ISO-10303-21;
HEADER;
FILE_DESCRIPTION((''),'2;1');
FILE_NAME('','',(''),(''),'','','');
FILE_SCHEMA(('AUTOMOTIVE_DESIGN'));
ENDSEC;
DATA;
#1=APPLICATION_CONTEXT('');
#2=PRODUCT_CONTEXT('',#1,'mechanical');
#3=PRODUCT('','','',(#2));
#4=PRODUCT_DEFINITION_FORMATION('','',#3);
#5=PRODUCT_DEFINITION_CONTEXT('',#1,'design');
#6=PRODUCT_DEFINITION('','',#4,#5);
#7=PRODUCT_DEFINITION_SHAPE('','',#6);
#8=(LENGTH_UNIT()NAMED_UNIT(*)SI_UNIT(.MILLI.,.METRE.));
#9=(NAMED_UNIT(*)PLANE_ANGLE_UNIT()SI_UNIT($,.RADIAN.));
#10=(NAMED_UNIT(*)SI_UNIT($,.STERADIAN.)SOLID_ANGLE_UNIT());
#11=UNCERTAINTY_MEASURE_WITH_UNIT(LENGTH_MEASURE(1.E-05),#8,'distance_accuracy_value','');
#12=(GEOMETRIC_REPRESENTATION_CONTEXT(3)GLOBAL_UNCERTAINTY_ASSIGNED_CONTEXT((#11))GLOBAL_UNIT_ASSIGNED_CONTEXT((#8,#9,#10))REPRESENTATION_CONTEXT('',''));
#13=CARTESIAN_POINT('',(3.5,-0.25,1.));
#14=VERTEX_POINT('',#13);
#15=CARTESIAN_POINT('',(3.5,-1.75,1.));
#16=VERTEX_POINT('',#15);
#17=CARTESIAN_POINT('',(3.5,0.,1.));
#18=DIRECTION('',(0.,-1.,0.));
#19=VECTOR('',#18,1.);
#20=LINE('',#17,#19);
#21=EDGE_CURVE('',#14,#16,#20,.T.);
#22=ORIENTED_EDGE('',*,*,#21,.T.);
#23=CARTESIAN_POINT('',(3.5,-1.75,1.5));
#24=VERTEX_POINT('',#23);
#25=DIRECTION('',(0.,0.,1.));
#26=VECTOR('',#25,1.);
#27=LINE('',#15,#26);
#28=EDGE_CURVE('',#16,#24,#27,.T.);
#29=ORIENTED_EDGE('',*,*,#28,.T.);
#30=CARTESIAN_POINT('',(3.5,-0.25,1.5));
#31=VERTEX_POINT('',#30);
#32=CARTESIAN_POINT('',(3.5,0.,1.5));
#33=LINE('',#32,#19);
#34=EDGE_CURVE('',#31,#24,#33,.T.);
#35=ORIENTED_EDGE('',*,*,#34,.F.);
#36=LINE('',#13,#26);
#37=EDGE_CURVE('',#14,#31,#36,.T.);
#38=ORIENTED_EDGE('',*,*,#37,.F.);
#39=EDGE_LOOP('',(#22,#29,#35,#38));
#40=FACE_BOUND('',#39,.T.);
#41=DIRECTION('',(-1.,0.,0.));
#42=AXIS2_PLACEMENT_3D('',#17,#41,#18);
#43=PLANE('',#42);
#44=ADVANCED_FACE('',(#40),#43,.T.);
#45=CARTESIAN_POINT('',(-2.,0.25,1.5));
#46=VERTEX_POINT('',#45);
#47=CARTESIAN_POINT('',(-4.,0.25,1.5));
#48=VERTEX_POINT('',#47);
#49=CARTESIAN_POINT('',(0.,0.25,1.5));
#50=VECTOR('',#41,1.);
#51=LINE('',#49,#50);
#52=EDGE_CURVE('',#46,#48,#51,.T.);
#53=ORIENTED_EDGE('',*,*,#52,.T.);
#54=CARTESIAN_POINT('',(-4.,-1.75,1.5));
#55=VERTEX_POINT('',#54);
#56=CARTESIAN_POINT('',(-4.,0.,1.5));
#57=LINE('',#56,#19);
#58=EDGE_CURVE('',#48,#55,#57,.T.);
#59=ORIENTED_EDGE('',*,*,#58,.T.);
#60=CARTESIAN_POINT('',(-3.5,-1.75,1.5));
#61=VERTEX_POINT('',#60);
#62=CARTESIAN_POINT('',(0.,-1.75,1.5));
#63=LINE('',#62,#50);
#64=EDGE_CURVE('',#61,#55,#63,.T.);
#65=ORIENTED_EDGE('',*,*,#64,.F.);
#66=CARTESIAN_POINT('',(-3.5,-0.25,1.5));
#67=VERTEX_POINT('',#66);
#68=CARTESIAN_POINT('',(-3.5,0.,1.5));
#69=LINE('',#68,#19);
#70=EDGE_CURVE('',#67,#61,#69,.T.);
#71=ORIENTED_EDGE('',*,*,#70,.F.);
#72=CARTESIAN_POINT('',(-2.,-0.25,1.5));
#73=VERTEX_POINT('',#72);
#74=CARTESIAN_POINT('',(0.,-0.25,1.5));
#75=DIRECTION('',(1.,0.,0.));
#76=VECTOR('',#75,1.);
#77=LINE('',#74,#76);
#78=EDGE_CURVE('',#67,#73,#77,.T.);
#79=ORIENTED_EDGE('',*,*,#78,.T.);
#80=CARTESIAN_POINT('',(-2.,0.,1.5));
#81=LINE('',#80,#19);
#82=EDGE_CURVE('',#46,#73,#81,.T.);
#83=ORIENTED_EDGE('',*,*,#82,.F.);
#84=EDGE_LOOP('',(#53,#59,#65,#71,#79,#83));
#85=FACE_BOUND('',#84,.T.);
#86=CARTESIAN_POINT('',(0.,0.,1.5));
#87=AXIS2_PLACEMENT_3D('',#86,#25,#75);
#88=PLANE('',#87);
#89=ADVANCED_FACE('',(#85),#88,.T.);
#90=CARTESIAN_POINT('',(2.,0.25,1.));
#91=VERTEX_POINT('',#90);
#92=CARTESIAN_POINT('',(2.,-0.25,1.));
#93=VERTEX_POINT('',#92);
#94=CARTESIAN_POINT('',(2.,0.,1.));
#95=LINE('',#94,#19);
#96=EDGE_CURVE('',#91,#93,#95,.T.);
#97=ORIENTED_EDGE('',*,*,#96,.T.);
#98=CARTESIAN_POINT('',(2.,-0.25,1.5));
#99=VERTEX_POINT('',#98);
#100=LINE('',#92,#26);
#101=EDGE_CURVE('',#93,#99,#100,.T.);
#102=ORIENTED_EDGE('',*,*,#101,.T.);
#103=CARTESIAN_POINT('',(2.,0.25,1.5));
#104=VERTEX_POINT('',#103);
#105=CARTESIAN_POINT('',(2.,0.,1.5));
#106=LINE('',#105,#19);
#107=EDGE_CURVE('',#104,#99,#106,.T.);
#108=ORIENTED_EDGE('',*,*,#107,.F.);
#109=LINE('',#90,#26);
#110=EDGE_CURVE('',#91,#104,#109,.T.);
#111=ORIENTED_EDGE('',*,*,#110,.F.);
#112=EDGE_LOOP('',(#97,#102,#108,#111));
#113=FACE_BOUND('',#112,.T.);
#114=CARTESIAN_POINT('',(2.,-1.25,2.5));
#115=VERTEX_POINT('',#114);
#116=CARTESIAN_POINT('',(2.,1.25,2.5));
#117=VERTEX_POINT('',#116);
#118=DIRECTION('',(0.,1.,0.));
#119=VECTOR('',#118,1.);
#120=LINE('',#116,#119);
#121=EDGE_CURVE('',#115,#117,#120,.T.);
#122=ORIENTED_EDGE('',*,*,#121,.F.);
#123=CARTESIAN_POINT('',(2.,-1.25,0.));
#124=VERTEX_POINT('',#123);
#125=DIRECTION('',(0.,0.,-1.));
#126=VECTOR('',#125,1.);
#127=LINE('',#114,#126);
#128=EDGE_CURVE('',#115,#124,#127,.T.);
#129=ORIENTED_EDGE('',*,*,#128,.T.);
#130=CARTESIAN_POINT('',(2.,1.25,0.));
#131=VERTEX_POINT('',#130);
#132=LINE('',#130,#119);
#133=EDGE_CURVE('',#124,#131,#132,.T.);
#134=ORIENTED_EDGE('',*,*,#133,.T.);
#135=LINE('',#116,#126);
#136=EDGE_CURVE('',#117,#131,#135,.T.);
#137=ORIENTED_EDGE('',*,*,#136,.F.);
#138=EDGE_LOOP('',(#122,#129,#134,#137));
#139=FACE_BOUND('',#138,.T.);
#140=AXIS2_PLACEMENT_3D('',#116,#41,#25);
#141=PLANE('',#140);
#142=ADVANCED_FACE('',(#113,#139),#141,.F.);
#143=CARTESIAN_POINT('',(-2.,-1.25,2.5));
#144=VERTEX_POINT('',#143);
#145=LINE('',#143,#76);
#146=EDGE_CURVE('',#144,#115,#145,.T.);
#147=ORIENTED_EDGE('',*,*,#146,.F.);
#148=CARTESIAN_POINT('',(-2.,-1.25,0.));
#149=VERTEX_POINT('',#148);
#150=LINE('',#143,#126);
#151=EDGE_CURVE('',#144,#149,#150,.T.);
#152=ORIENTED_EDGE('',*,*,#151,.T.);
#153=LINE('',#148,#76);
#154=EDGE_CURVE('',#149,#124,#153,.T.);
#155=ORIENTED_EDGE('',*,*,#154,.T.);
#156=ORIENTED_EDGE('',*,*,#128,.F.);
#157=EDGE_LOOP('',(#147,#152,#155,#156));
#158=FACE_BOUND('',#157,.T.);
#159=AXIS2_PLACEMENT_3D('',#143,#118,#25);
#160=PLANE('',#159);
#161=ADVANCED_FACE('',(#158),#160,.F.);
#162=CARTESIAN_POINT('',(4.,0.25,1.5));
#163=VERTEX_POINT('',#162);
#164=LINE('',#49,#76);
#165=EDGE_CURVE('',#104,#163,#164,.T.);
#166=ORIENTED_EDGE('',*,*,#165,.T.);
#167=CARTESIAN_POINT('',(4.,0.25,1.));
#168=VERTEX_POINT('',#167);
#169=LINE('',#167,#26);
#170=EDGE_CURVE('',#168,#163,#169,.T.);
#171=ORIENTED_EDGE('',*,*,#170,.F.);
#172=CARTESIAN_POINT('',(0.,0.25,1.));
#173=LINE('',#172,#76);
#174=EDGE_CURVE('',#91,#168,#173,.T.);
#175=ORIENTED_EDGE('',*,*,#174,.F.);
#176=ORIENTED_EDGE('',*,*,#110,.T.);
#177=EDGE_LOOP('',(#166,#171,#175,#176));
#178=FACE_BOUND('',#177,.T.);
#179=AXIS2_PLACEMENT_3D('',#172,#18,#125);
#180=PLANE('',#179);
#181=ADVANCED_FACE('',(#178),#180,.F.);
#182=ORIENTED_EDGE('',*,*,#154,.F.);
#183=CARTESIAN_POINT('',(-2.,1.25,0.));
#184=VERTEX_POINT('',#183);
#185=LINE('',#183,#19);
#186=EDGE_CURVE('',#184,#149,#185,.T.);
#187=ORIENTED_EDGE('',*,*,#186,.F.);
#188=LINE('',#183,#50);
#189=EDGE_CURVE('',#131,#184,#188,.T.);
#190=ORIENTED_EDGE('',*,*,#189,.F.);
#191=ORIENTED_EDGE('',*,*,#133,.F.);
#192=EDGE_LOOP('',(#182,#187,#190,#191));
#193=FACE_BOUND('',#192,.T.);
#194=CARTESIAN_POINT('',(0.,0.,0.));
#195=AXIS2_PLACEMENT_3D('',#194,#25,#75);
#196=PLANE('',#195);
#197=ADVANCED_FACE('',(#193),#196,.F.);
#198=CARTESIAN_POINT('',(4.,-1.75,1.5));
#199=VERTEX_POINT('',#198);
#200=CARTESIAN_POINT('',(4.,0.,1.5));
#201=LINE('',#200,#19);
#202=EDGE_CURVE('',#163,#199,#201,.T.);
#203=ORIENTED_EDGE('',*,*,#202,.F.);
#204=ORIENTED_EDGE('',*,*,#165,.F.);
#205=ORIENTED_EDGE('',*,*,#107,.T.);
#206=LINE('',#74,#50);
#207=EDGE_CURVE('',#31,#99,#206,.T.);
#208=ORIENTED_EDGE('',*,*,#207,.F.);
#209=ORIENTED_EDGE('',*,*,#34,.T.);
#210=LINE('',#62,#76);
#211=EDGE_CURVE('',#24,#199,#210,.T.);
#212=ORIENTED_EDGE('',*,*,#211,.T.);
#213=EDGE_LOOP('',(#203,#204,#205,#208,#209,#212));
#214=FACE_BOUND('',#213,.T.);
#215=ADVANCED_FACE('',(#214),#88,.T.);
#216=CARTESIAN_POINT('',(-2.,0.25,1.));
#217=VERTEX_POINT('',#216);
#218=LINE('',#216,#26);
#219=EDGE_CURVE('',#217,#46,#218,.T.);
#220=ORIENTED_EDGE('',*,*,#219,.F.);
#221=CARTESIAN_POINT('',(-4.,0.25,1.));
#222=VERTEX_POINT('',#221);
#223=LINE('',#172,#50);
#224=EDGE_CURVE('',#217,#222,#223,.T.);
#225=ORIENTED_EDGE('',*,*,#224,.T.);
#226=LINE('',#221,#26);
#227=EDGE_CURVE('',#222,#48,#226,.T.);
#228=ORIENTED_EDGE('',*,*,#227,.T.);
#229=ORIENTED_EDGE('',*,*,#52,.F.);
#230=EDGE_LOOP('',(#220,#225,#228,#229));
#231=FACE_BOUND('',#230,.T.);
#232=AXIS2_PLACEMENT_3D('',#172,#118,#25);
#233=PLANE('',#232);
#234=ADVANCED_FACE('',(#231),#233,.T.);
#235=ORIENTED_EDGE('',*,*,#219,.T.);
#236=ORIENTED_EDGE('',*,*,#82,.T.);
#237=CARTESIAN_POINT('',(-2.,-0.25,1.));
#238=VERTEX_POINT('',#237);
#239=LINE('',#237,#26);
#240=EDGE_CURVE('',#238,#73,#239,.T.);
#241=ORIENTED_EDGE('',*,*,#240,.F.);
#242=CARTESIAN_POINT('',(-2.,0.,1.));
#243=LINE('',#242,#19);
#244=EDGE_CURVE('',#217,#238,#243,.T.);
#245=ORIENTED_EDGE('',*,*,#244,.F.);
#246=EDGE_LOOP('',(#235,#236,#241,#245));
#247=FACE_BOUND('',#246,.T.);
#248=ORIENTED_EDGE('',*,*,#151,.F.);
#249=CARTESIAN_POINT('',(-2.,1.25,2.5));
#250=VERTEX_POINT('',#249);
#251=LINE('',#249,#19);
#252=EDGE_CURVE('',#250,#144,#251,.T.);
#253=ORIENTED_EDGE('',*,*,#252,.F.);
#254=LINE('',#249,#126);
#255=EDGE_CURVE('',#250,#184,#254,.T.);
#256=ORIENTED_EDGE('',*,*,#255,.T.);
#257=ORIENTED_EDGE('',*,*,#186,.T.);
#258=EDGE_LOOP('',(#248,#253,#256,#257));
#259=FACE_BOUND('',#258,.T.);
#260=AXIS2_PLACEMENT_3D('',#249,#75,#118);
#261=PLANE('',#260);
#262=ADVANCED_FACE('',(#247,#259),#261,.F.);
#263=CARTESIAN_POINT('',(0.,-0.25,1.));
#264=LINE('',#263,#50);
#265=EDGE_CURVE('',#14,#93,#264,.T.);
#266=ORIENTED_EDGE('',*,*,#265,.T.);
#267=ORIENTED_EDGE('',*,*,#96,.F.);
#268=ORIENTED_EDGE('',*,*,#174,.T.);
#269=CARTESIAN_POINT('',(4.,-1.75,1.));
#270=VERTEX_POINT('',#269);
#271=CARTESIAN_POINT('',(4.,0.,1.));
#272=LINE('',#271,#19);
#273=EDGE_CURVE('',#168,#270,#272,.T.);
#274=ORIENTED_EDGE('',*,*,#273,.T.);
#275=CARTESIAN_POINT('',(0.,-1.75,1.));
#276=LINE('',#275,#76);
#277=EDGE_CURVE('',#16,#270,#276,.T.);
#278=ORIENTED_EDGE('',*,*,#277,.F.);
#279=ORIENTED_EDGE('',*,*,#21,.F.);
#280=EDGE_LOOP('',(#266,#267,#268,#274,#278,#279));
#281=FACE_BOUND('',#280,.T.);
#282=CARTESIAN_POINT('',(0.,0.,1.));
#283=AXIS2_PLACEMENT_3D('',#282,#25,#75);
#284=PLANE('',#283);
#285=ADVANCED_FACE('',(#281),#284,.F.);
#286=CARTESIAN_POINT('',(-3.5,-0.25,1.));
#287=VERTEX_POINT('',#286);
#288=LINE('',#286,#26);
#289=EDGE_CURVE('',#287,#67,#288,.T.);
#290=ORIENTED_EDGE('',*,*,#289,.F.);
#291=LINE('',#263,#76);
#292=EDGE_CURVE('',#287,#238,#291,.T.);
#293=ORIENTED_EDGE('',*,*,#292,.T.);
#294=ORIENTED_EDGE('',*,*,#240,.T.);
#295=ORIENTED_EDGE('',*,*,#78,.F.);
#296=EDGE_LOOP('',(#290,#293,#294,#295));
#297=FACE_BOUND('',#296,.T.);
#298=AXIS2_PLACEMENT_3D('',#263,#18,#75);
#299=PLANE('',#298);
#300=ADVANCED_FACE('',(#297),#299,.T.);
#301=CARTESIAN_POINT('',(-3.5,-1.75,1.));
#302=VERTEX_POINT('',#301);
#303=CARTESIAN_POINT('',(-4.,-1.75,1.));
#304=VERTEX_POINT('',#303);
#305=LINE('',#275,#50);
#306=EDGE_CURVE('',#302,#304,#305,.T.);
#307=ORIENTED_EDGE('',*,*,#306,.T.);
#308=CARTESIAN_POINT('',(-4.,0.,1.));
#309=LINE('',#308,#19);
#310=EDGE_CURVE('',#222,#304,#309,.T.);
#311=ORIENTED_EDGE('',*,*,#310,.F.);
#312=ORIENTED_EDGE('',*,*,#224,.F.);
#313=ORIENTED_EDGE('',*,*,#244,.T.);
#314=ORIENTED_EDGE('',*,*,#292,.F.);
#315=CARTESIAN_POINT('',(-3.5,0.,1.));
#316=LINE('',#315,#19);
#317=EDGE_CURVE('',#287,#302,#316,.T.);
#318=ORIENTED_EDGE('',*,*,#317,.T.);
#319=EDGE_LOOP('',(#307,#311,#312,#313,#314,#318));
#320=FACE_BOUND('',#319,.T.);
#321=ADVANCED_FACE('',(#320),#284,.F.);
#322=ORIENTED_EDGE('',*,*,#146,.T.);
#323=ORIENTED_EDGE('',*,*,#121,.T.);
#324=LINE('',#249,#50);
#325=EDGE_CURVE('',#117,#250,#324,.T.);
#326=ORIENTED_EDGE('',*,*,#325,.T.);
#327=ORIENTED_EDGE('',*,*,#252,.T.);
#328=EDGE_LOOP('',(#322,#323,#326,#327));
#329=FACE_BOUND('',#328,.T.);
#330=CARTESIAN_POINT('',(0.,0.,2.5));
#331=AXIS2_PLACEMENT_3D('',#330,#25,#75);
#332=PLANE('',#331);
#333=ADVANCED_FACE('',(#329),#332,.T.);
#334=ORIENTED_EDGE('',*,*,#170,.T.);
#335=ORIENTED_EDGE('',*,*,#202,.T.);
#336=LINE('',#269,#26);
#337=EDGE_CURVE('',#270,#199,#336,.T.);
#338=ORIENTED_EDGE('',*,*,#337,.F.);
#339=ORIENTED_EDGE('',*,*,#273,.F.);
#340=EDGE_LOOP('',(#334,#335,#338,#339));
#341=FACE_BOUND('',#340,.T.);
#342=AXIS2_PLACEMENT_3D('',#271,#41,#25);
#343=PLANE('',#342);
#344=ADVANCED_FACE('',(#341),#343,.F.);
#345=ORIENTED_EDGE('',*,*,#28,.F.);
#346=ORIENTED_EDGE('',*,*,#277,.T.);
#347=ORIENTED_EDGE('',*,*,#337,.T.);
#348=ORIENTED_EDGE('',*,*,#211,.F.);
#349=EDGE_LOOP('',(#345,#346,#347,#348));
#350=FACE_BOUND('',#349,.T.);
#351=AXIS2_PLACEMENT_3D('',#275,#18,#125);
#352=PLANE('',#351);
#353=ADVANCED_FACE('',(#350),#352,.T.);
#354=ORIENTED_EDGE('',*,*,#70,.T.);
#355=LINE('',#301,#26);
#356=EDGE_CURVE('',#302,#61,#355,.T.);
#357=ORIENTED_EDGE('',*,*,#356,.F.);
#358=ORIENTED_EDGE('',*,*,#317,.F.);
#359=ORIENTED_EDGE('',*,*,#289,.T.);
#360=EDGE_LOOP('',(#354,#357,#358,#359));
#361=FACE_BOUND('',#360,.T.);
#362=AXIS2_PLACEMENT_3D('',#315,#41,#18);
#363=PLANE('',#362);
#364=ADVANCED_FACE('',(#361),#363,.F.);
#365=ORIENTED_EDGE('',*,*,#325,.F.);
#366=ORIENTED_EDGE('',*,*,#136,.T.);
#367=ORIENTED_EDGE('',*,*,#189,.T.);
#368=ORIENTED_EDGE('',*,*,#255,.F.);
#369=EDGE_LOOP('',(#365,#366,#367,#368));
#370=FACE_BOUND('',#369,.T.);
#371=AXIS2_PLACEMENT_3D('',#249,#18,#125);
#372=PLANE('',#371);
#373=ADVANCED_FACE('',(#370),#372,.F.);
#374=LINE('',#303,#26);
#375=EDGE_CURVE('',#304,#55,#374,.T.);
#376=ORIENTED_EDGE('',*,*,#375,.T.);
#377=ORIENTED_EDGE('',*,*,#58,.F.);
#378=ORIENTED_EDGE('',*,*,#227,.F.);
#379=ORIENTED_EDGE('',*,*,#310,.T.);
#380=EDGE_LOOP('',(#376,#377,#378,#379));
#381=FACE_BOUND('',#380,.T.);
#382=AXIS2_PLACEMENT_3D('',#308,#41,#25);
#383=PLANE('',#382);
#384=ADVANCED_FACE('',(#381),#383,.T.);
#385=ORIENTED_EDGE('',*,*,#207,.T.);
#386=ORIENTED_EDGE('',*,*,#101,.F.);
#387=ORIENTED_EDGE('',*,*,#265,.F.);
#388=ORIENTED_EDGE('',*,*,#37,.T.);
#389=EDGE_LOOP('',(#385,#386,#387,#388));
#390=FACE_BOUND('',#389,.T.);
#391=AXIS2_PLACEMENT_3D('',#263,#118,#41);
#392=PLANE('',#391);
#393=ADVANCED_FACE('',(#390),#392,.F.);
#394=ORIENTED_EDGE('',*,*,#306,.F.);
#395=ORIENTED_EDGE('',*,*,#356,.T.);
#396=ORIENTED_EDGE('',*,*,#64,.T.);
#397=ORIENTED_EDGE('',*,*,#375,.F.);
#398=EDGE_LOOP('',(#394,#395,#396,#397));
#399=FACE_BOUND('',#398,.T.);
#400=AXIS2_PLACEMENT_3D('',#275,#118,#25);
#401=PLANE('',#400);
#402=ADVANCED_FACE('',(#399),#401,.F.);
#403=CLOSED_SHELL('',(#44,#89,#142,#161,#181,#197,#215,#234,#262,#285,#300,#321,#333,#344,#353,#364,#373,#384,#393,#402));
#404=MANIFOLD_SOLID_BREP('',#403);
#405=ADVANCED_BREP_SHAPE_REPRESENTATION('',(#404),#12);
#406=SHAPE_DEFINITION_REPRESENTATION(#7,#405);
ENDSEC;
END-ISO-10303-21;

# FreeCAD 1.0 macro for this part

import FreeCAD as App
import Part
import Sketcher
from FreeCAD import Vector


def add_polygon(sketch, points):
    """Adds a closed chain of lines whose ends are joined by coincident constraints."""
    first, n = sketch.GeometryCount, len(points)
    for a, b in zip(points, points[1:] + points[:1]):
        sketch.addGeometry(Part.LineSegment(App.Vector(*a, 0), App.Vector(*b, 0)), False)
    for i in range(n):
        sketch.addConstraint(Sketcher.Constraint("Coincident", first + i, 2, first + (i + 1) % n, 1))

doc = App.newDocument("Part")
body = doc.addObject("PartDesign::Body", "Body")

# Sketch on XY plane
sketch1 = doc.addObject("Sketcher::SketchObject", "Sketch")
body.addObject(sketch1)
sketch1.AttachmentSupport = (doc.XY_Plane, [""])
sketch1.MapMode = "FlatFace"
add_polygon(sketch1, [(-2, 1.2), (-2, -1.2), (2, -1.2), (2, 1.2)])  # lines 0-3
sketch1.addConstraint([
    Sketcher.Constraint("Vertical", 0),
    Sketcher.Constraint("Horizontal", 1),
    Sketcher.Constraint("Vertical", 2),
    Sketcher.Constraint("Horizontal", 3),
    Sketcher.Constraint("Symmetric", 0, 2, 2, 2, -1, 1),
    Sketcher.Constraint("DistanceX", 1, 1, 1, 2, 4.0),
    Sketcher.Constraint("DistanceY", 0, 2, 0, 1, 2.5),
])
pad1 = doc.addObject("PartDesign::Pad", "Pad")
body.addObject(pad1)
pad1.Profile = sketch1
pad1.Length = 2.5

# Sketch on XY plane
sketch2 = doc.addObject("Sketcher::SketchObject", "Sketch001")
body.addObject(sketch2)
sketch2.AttachmentSupport = (doc.XY_Plane, [""])
sketch2.MapMode = "FlatFace"
sketch2.AttachmentOffset = App.Placement(Vector(0, 0, 1.25), App.Rotation())
add_polygon(sketch2, [(2, 0.2), (2, -0.2), (3.5, -0.2), (3.5, -1.8), (4, -1.8), (4, 0.2)])  # lines 0-5
add_polygon(sketch2, [(-2, -0.2), (-2, 0.2), (-4, 0.2), (-4, -1.8), (-3.5, -1.8), (-3.5, -0.2)])  # lines 6-11
sketch2.addConstraint([
    Sketcher.Constraint("Vertical", 0),
    Sketcher.Constraint("Horizontal", 1),
    Sketcher.Constraint("Vertical", 2),
    Sketcher.Constraint("Horizontal", 3),
    Sketcher.Constraint("Vertical", 4),
    Sketcher.Constraint("Horizontal", 5),
    Sketcher.Constraint("Vertical", 6),
    Sketcher.Constraint("Horizontal", 7),
    Sketcher.Constraint("Vertical", 8),
    Sketcher.Constraint("Horizontal", 9),
    Sketcher.Constraint("Vertical", 10),
    Sketcher.Constraint("Horizontal", 11),
    Sketcher.Constraint("Symmetric", 0, 2, 6, 2, -1, 1),
    Sketcher.Constraint("Symmetric", 4, 2, 7, 2, -2),
    Sketcher.Constraint("Symmetric", 2, 2, 9, 2, -2),
    Sketcher.Constraint("Horizontal", 1, 2, 10, 2),
    Sketcher.Constraint("Equal", 9, 0),
    Sketcher.Constraint("Equal", 11, 2),
    Sketcher.Constraint("DistanceX", 5, 2, 5, 1, 2.0),
    Sketcher.Constraint("DistanceX", 1, 1, 1, 2, 1.5),
    Sketcher.Constraint("DistanceX", -1, 1, 0, 2, 2.0),
])
pad2 = doc.addObject("PartDesign::Pad", "Pad001")
body.addObject(pad2)
pad2.Profile = sketch2
pad2.Type = "TwoLengths"
pad2.Length = 0.25
pad2.Length2 = 0.25

doc.recompute()
